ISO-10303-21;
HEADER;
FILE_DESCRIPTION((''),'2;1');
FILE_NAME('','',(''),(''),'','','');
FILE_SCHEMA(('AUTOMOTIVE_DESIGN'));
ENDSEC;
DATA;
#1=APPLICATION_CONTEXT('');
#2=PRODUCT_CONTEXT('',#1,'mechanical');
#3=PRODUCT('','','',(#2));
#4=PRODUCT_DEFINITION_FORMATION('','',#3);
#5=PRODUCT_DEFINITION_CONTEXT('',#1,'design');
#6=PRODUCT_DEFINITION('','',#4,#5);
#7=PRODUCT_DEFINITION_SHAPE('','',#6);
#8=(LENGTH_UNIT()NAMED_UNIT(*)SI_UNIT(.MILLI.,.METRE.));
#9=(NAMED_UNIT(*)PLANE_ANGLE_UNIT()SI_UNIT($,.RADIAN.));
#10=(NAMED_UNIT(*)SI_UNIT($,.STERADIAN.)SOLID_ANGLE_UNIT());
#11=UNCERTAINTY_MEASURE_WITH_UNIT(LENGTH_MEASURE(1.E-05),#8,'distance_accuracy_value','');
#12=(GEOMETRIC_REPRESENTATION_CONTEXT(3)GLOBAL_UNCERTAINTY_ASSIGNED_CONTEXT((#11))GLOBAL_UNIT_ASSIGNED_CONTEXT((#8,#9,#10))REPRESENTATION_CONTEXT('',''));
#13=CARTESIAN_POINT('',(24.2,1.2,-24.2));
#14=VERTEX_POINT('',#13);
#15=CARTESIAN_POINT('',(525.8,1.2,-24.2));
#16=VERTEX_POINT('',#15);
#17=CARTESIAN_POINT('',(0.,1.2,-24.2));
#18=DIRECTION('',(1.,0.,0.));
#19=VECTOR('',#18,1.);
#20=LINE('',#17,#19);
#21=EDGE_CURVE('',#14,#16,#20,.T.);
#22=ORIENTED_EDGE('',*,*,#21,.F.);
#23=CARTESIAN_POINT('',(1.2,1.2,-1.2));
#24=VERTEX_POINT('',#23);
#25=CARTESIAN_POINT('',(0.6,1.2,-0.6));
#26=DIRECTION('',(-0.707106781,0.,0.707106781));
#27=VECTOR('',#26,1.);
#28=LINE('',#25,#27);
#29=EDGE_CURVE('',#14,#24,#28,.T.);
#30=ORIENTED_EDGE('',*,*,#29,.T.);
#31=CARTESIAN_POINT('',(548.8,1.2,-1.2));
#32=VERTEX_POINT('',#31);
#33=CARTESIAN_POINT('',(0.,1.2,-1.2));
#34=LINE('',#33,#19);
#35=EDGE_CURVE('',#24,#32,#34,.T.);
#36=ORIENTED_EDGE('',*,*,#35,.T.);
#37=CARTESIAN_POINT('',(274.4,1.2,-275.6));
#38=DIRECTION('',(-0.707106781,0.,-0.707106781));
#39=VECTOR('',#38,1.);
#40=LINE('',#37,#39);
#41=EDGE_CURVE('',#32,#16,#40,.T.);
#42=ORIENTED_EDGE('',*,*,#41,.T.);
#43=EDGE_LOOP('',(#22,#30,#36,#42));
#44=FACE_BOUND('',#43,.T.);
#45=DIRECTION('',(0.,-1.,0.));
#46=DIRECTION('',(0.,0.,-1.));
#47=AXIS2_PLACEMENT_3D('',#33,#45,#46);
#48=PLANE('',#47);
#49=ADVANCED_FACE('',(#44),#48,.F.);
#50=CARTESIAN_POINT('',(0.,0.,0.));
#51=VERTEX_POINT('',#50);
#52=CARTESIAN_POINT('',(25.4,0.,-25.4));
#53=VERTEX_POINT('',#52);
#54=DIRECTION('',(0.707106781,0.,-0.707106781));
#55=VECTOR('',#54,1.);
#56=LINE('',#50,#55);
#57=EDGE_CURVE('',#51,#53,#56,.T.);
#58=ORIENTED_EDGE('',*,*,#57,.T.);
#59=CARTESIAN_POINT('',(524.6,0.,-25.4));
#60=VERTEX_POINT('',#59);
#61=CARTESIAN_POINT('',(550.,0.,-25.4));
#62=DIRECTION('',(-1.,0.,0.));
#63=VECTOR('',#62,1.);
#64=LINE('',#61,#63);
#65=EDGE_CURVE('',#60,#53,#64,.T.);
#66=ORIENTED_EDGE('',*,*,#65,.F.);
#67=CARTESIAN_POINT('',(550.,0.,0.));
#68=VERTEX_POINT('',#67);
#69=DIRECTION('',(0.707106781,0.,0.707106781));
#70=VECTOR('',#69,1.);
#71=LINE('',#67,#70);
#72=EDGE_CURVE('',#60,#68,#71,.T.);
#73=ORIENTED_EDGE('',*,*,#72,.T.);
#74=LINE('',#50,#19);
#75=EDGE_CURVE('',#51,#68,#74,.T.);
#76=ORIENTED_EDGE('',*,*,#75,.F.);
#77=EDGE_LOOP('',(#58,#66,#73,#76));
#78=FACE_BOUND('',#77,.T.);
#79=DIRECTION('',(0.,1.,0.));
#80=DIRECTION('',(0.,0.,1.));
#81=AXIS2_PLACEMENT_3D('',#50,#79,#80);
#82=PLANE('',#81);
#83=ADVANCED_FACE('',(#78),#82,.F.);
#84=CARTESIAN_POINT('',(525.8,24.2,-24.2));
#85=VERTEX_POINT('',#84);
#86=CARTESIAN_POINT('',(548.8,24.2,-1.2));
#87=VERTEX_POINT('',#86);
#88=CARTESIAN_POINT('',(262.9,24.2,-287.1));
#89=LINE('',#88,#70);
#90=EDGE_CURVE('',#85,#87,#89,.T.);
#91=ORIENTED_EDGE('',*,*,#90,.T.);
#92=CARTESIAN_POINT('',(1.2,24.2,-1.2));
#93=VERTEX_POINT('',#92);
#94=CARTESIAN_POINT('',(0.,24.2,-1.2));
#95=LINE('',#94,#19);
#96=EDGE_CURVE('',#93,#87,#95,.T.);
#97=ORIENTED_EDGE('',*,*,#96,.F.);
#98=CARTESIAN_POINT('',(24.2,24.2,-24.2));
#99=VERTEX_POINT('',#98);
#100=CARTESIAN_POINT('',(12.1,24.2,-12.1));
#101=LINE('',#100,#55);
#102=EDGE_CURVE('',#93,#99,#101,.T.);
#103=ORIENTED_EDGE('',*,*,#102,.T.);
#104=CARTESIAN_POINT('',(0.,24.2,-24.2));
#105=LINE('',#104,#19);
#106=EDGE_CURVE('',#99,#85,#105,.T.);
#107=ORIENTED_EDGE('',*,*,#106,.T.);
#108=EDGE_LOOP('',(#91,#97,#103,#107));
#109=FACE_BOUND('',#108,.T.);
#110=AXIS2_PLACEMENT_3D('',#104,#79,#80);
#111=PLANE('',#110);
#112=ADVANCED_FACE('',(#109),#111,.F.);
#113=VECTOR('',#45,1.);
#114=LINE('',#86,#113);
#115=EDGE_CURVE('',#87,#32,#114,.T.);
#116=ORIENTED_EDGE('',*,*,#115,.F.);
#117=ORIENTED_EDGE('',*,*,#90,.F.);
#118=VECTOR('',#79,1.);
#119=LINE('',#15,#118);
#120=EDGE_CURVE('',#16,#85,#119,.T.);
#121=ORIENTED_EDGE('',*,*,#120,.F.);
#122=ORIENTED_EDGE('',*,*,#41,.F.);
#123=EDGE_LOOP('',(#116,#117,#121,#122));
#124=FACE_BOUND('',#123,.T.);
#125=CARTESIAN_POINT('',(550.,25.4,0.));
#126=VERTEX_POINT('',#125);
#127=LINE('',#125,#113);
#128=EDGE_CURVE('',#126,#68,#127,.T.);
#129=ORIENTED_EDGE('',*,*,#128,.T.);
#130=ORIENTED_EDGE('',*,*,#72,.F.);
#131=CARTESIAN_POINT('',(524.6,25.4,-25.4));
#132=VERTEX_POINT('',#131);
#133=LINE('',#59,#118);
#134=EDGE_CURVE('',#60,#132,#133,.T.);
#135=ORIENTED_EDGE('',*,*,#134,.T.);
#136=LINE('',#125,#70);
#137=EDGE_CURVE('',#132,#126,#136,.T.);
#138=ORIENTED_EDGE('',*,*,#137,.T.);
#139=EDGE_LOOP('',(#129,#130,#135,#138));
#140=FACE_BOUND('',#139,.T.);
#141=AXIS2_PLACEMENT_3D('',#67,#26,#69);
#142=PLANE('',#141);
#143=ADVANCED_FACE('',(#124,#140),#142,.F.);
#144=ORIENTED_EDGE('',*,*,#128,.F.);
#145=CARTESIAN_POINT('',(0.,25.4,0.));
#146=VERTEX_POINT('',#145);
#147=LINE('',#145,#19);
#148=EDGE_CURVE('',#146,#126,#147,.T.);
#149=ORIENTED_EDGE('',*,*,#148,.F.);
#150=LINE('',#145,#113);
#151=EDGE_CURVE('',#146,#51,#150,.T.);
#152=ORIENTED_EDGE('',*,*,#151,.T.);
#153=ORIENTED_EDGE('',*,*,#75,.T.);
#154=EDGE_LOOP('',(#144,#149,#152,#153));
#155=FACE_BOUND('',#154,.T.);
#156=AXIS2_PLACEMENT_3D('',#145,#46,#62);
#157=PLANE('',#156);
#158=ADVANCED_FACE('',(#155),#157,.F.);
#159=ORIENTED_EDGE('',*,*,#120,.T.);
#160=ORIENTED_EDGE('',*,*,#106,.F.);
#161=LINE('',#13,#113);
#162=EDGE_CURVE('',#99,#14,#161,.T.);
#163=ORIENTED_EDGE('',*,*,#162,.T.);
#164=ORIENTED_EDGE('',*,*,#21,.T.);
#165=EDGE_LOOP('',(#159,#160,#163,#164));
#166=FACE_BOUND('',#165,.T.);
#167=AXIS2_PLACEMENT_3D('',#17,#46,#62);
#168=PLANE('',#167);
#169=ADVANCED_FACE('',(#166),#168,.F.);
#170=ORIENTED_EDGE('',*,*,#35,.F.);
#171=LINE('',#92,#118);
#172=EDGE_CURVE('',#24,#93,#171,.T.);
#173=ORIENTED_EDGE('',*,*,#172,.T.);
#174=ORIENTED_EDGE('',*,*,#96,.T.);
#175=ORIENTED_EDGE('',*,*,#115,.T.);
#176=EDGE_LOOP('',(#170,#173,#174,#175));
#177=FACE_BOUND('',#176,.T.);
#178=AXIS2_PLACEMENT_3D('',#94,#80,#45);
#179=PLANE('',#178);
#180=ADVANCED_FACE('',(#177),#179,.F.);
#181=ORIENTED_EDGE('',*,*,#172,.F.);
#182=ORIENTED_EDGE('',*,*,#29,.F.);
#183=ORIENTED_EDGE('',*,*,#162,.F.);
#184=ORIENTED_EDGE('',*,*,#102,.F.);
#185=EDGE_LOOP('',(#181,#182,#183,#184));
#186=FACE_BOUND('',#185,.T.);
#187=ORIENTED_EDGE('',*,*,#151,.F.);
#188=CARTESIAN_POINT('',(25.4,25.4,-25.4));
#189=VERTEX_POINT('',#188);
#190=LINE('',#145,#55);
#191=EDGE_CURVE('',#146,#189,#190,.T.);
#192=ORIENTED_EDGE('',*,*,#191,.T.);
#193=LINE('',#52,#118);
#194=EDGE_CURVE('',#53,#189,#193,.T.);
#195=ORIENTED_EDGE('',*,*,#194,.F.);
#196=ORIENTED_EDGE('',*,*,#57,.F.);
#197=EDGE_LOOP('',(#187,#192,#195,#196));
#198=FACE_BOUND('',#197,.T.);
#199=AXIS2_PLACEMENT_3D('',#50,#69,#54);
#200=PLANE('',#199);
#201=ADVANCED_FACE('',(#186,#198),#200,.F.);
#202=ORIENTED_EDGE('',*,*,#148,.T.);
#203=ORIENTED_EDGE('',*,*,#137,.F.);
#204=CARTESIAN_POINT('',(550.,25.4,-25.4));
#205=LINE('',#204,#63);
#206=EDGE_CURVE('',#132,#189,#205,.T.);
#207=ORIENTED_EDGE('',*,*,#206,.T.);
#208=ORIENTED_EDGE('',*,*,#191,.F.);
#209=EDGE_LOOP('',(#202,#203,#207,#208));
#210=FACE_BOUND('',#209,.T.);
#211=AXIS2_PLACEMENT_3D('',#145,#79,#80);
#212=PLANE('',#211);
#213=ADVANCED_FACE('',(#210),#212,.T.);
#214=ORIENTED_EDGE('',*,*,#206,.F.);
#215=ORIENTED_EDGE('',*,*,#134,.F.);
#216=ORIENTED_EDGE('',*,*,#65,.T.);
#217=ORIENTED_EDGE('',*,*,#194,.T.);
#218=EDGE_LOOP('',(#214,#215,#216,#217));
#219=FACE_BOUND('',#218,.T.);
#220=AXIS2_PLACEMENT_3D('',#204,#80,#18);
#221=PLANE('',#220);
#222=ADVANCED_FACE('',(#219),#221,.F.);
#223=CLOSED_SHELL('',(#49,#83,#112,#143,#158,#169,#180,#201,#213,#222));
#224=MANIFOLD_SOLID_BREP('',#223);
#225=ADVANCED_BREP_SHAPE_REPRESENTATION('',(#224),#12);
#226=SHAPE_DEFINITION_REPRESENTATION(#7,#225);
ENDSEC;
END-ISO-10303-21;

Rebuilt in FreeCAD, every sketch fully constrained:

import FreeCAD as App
import Part
import Sketcher
from FreeCAD import Vector


def add_polygon(sketch, points):
    """Adds a closed chain of lines whose ends are joined by coincident constraints."""
    first, n = sketch.GeometryCount, len(points)
    for a, b in zip(points, points[1:] + points[:1]):
        sketch.addGeometry(Part.LineSegment(App.Vector(*a, 0), App.Vector(*b, 0)), False)
    for i in range(n):
        sketch.addConstraint(Sketcher.Constraint("Coincident", first + i, 2, first + (i + 1) % n, 1))

doc = App.newDocument("Part")
body = doc.addObject("PartDesign::Body", "Body")

# Sketch on XZ plane
sketch1 = body.newObject("Sketcher::SketchObject", "Sketch")
sketch1.AttachmentSupport = (doc.getObject("XZ_Plane"), [""])
sketch1.MapMode = "FlatFace"
add_polygon(sketch1, [(0, -25), (0, 0), (550, 0), (550, -25)])  # lines 0-3
sketch1.addConstraint(Sketcher.Constraint("Vertical", 0))
sketch1.addConstraint(Sketcher.Constraint("Horizontal", 1))
sketch1.addConstraint(Sketcher.Constraint("Vertical", 2))
sketch1.addConstraint(Sketcher.Constraint("Horizontal", 3))
sketch1.addConstraint(Sketcher.Constraint("Coincident", 0, 2, -1, 1))
sketch1.addConstraint(Sketcher.Constraint("DistanceX", 1, 1, 1, 2, 550.0))
sketch1.addConstraint(Sketcher.Constraint("DistanceY", 0, 1, 0, 2, 25.4))
pad1 = body.newObject("PartDesign::Pad", "Pad")
pad1.Profile = sketch1
pad1.Length = 25.4
pad1.Reversed = True

# Sketch on YZ plane
sketch2 = body.newObject("Sketcher::SketchObject", "Sketch001")
sketch2.AttachmentSupport = (doc.getObject("YZ_Plane"), [""])
sketch2.MapMode = "FlatFace"
sketch2.AttachmentOffset = App.Placement(Vector(0, 0, 550), App.Rotation())
add_polygon(sketch2, [(24, -1), (1, -1), (1, -24), (24, -24)])  # lines 0-3
sketch2.addConstraint(Sketcher.Constraint("Horizontal", 0))
sketch2.addConstraint(Sketcher.Constraint("Vertical", 1))
sketch2.addConstraint(Sketcher.Constraint("Horizontal", 2))
sketch2.addConstraint(Sketcher.Constraint("Vertical", 3))
sketch2.addConstraint(Sketcher.Constraint("Equal", 2, 1))
sketch2.addConstraint(Sketcher.Constraint("DistanceX", 0, 2, 0, 1, 23.0))
sketch2.addConstraint(Sketcher.Constraint("DistanceX", -1, 1, 0, 2, 1.2))
sketch2.addConstraint(Sketcher.Constraint("DistanceY", 0, 2, -1, 1, 1.2))
pocket1 = body.newObject("PartDesign::Pocket", "Pocket")
pocket1.Profile = sketch2
pocket1.Length = 550

# Sketch on XZ plane
sketch3 = body.newObject("Sketcher::SketchObject", "Sketch002")
sketch3.AttachmentSupport = (doc.getObject("XZ_Plane"), [""])
sketch3.MapMode = "FlatFace"
sketch3.AttachmentOffset = App.Placement(Vector(0, 0, -25.4), App.Rotation())
add_polygon(sketch3, [(0, 0), (25, -25), (0, -25)])  # lines 0-2
add_polygon(sketch3, [(525, -25), (550, 0), (550, -25)])  # lines 3-5
sketch3.addConstraint(Sketcher.Constraint("Horizontal", 1))
sketch3.addConstraint(Sketcher.Constraint("Vertical", 2))
sketch3.addConstraint(Sketcher.Constraint("Vertical", 4))
sketch3.addConstraint(Sketcher.Constraint("Horizontal", 5))
sketch3.addConstraint(Sketcher.Constraint("Coincident", 2, 2, -1, 1))
sketch3.addConstraint(Sketcher.Constraint("PointOnObject", 3, 2, -1))
sketch3.addConstraint(Sketcher.Constraint("Perpendicular", 0, 3))
sketch3.addConstraint(Sketcher.Constraint("Horizontal", 1, 2, 4, 2))
sketch3.addConstraint(Sketcher.Constraint("Equal", 1, 5))
sketch3.addConstraint(Sketcher.Constraint("DistanceX", 1, 2, 1, 1, 25.4))
sketch3.addConstraint(Sketcher.Constraint("DistanceX", -1, 1, 3, 2, 550.0))
pocket2 = body.newObject("PartDesign::Pocket", "Pocket001")
pocket2.Profile = sketch3
pocket2.Length = 25.4
pocket2.Reversed = True

doc.recompute()
